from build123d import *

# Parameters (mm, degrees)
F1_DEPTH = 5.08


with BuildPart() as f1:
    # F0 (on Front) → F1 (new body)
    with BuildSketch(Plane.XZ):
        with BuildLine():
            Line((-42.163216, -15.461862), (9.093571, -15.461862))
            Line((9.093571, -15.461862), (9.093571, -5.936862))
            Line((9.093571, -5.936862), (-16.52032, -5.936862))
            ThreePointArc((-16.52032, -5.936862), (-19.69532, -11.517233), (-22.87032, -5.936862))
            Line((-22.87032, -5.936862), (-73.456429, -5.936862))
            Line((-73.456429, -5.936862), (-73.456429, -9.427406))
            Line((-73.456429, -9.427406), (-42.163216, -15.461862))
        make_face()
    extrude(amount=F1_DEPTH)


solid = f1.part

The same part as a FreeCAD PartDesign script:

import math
import FreeCAD as App
import Part
import Sketcher
from FreeCAD import Vector
Q = App.Units.Quantity

doc = App.newDocument("Part")
body = doc.addObject("PartDesign::Body", "Body")

# Sketch on XZ plane
sketch1 = body.newObject("Sketcher::SketchObject", "Sketch")
sketch1.AttachmentSupport = (doc.getObject("XZ_Plane"), [""])
sketch1.MapMode = "FlatFace"
sketch1.addGeometry([
    Part.LineSegment(Vector(-42.163216, -15.461862, 0), Vector(9.093571, -15.461862, 0)),  # 0
    Part.LineSegment(Vector(9.093571, -15.461862, 0), Vector(9.093571, -5.936862, 0)),  # 1
    Part.LineSegment(Vector(9.093571, -5.936862, 0), Vector(-16.52032, -5.936862, 0)),  # 2
    Part.ArcOfCircle(Part.Circle(Vector(-19.69532, -7.823826, 0), Vector(0, 0, 1), 3.693407), math.radians(149.276167), math.radians(390.723833)),  # 3
    Part.LineSegment(Vector(-22.87032, -5.936862, 0), Vector(-73.456429, -5.936862, 0)),  # 4
    Part.LineSegment(Vector(-73.456429, -5.936862, 0), Vector(-73.456429, -9.427406, 0)),  # 5
    Part.LineSegment(Vector(-73.456429, -9.427406, 0), Vector(-42.163216, -15.461862, 0)),  # 6
], False)
sketch1.addConstraint([
    Sketcher.Constraint("Coincident", 0, 2, 1, 1),
    Sketcher.Constraint("Coincident", 1, 2, 2, 1),
    Sketcher.Constraint("Coincident", 2, 2, 3, 2),
    Sketcher.Constraint("Coincident", 3, 1, 4, 1),
    Sketcher.Constraint("Coincident", 4, 2, 5, 1),
    Sketcher.Constraint("Coincident", 5, 2, 6, 1),
    Sketcher.Constraint("Coincident", 6, 2, 0, 1),
    Sketcher.Constraint("Horizontal", 0),
    Sketcher.Constraint("Vertical", 1),
    Sketcher.Constraint("Horizontal", 2),
    Sketcher.Constraint("Horizontal", 4),
    Sketcher.Constraint("Vertical", 5),
    Sketcher.Constraint("Horizontal", 2, 2, 3, 1),
    Sketcher.Constraint("DistanceY", 1, 1, 1, 2, Q("0.375 in")),
    Sketcher.Constraint("DistanceX", 3, 1, 2, 2, Q("0.25 in")),
    Sketcher.Constraint("DistanceX", 4, 2, 1, 2, Q("3.25 in")),
    Sketcher.Constraint("Radius", 3, 3.693407),
    Sketcher.Constraint("DistanceX", 2, 2, 2, 1, 25.613891),
    Sketcher.Constraint("DistanceX", 0, 1, 0, 2, 51.256787),
    Sketcher.Constraint("DistanceY", 5, 2, 5, 1, 3.490544),
    Sketcher.Constraint("DistanceX", 3, 3, -1, 1, 19.69532),
    Sketcher.Constraint("DistanceY", 1, 2, -1, 1, 5.936862),
])
pad1 = body.newObject("PartDesign::Pad", "Pad")
pad1.Profile = sketch1
pad1.Length = Q("0.2 in")

doc.recompute()
